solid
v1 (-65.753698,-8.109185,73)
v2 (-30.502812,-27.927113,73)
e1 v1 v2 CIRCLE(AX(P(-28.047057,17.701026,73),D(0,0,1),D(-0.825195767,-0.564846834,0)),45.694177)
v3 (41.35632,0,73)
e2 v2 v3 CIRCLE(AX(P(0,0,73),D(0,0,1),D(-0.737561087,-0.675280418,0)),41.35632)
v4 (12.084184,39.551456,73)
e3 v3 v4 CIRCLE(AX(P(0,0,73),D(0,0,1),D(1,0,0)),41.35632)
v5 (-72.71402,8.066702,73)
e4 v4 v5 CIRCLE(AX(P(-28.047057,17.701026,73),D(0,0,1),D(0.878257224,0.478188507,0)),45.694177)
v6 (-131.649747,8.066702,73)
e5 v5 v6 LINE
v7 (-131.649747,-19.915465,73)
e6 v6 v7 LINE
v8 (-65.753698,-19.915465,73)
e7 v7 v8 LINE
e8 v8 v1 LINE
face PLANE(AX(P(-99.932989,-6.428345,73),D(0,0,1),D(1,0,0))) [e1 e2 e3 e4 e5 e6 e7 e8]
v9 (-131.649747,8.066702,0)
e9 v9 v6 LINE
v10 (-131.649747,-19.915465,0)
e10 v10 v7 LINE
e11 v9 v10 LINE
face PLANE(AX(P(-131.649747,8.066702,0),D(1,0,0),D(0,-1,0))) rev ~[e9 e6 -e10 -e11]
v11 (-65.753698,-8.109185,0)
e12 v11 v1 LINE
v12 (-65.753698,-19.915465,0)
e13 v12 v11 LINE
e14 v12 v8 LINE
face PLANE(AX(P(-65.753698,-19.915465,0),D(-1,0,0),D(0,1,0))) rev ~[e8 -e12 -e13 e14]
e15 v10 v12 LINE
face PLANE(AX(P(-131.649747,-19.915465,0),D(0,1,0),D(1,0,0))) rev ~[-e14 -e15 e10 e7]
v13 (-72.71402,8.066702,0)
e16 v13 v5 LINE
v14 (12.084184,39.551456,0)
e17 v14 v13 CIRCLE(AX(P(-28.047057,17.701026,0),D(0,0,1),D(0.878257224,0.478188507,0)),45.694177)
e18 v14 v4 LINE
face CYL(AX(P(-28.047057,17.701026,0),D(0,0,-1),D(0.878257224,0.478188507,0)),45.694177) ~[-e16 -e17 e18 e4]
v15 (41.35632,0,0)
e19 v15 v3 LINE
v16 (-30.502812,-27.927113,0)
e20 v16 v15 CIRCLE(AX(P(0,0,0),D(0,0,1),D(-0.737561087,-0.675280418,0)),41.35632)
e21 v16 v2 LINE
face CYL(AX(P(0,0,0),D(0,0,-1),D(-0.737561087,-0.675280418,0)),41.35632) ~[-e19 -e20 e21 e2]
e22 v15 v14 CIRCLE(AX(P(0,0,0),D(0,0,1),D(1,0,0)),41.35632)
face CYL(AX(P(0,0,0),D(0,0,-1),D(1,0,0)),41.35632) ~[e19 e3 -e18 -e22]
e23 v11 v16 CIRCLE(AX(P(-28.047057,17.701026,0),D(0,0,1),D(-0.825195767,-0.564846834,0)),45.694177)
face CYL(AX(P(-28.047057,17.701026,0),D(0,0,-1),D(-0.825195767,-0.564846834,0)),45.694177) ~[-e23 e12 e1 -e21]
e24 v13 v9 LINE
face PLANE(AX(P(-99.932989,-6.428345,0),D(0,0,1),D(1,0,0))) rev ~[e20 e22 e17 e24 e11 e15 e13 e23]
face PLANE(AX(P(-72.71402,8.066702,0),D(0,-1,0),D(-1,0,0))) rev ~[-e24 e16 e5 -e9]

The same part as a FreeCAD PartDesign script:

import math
import FreeCAD as App
import Part
import Sketcher

V = App.Vector

doc = App.newDocument("Part")
body = doc.addObject("PartDesign::Body", "Body")

sketch1 = doc.addObject("Sketcher::SketchObject", "Sketch")
body.addObject(sketch1)
sketch1.AttachmentSupport = (doc.XY_Plane, [""])
sketch1.MapMode = "FlatFace"
sketch1.addGeometry([
    Part.LineSegment(V(-73, 8, 0), V(-132, 8, 0)),
    Part.LineSegment(V(-132, 8, 0), V(-132, -20, 0)),
    Part.LineSegment(V(-132, -20, 0), V(-66, -20, 0)),
    Part.LineSegment(V(-66, -20, 0), V(-66, -8, 0)),
    Part.ArcOfCircle(Part.Circle(V(-28, 18, 0), V(0, 0, 1), 46), math.radians(-146), math.radians(-93)),
    Part.ArcOfCircle(Part.Circle(V(0, 0, 0), V(0, 0, 1), 41), math.radians(-138), math.radians(0)),
    Part.ArcOfCircle(Part.Circle(V(0, 0, 0), V(0, 0, 1), 41), math.radians(0), math.radians(73)),
    Part.ArcOfCircle(Part.Circle(V(-28, 18, 0), V(0, 0, 1), 46), math.radians(29), math.radians(192)),
], False)
sketch1.addConstraint([
    Sketcher.Constraint("Coincident", 0, 2, 1, 1),
    Sketcher.Constraint("Coincident", 1, 2, 2, 1),
    Sketcher.Constraint("Coincident", 2, 2, 3, 1),
    Sketcher.Constraint("Coincident", 3, 2, 4, 1),
    Sketcher.Constraint("Coincident", 4, 2, 5, 1),
    Sketcher.Constraint("Tangent", 5, 2, 6, 1),
    Sketcher.Constraint("Coincident", 6, 2, 7, 1),
    Sketcher.Constraint("Coincident", 7, 2, 0, 1),
    Sketcher.Constraint("Horizontal", 0),
    Sketcher.Constraint("Vertical", 1),
    Sketcher.Constraint("Horizontal", 2),
    Sketcher.Constraint("Vertical", 3),
    Sketcher.Constraint("Coincident", 5, 3, -1, 1),
    Sketcher.Constraint("Coincident", 7, 3, 4, 3),
    Sketcher.Constraint("Equal", 5, 6),
    Sketcher.Constraint("Equal", 4, 7),
    Sketcher.Constraint("PointOnObject", 5, 2, -1),
    Sketcher.Constraint("Radius", 5, 41.35632),
    Sketcher.Constraint("Radius", 4, 45.694177),
    Sketcher.Constraint("DistanceX", 2, 1, 2, 2, 65.896049),
    Sketcher.Constraint("DistanceY", 3, 1, 3, 2, 11.80628),
    Sketcher.Constraint("DistanceY", -1, 1, 0, 2, 8.066702),
    Sketcher.Constraint("DistanceX", 2, 2, -1, 1, 65.753698),
    Sketcher.Constraint("DistanceX", 0, 2, 0, 1, 58.935727),
    Sketcher.Constraint("DistanceY", 1, 2, 1, 1, 27.982167),
])
pad1 = doc.addObject("PartDesign::Pad", "Pad")
body.addObject(pad1)
pad1.Profile = sketch1
pad1.Length = 73

doc.recompute()
